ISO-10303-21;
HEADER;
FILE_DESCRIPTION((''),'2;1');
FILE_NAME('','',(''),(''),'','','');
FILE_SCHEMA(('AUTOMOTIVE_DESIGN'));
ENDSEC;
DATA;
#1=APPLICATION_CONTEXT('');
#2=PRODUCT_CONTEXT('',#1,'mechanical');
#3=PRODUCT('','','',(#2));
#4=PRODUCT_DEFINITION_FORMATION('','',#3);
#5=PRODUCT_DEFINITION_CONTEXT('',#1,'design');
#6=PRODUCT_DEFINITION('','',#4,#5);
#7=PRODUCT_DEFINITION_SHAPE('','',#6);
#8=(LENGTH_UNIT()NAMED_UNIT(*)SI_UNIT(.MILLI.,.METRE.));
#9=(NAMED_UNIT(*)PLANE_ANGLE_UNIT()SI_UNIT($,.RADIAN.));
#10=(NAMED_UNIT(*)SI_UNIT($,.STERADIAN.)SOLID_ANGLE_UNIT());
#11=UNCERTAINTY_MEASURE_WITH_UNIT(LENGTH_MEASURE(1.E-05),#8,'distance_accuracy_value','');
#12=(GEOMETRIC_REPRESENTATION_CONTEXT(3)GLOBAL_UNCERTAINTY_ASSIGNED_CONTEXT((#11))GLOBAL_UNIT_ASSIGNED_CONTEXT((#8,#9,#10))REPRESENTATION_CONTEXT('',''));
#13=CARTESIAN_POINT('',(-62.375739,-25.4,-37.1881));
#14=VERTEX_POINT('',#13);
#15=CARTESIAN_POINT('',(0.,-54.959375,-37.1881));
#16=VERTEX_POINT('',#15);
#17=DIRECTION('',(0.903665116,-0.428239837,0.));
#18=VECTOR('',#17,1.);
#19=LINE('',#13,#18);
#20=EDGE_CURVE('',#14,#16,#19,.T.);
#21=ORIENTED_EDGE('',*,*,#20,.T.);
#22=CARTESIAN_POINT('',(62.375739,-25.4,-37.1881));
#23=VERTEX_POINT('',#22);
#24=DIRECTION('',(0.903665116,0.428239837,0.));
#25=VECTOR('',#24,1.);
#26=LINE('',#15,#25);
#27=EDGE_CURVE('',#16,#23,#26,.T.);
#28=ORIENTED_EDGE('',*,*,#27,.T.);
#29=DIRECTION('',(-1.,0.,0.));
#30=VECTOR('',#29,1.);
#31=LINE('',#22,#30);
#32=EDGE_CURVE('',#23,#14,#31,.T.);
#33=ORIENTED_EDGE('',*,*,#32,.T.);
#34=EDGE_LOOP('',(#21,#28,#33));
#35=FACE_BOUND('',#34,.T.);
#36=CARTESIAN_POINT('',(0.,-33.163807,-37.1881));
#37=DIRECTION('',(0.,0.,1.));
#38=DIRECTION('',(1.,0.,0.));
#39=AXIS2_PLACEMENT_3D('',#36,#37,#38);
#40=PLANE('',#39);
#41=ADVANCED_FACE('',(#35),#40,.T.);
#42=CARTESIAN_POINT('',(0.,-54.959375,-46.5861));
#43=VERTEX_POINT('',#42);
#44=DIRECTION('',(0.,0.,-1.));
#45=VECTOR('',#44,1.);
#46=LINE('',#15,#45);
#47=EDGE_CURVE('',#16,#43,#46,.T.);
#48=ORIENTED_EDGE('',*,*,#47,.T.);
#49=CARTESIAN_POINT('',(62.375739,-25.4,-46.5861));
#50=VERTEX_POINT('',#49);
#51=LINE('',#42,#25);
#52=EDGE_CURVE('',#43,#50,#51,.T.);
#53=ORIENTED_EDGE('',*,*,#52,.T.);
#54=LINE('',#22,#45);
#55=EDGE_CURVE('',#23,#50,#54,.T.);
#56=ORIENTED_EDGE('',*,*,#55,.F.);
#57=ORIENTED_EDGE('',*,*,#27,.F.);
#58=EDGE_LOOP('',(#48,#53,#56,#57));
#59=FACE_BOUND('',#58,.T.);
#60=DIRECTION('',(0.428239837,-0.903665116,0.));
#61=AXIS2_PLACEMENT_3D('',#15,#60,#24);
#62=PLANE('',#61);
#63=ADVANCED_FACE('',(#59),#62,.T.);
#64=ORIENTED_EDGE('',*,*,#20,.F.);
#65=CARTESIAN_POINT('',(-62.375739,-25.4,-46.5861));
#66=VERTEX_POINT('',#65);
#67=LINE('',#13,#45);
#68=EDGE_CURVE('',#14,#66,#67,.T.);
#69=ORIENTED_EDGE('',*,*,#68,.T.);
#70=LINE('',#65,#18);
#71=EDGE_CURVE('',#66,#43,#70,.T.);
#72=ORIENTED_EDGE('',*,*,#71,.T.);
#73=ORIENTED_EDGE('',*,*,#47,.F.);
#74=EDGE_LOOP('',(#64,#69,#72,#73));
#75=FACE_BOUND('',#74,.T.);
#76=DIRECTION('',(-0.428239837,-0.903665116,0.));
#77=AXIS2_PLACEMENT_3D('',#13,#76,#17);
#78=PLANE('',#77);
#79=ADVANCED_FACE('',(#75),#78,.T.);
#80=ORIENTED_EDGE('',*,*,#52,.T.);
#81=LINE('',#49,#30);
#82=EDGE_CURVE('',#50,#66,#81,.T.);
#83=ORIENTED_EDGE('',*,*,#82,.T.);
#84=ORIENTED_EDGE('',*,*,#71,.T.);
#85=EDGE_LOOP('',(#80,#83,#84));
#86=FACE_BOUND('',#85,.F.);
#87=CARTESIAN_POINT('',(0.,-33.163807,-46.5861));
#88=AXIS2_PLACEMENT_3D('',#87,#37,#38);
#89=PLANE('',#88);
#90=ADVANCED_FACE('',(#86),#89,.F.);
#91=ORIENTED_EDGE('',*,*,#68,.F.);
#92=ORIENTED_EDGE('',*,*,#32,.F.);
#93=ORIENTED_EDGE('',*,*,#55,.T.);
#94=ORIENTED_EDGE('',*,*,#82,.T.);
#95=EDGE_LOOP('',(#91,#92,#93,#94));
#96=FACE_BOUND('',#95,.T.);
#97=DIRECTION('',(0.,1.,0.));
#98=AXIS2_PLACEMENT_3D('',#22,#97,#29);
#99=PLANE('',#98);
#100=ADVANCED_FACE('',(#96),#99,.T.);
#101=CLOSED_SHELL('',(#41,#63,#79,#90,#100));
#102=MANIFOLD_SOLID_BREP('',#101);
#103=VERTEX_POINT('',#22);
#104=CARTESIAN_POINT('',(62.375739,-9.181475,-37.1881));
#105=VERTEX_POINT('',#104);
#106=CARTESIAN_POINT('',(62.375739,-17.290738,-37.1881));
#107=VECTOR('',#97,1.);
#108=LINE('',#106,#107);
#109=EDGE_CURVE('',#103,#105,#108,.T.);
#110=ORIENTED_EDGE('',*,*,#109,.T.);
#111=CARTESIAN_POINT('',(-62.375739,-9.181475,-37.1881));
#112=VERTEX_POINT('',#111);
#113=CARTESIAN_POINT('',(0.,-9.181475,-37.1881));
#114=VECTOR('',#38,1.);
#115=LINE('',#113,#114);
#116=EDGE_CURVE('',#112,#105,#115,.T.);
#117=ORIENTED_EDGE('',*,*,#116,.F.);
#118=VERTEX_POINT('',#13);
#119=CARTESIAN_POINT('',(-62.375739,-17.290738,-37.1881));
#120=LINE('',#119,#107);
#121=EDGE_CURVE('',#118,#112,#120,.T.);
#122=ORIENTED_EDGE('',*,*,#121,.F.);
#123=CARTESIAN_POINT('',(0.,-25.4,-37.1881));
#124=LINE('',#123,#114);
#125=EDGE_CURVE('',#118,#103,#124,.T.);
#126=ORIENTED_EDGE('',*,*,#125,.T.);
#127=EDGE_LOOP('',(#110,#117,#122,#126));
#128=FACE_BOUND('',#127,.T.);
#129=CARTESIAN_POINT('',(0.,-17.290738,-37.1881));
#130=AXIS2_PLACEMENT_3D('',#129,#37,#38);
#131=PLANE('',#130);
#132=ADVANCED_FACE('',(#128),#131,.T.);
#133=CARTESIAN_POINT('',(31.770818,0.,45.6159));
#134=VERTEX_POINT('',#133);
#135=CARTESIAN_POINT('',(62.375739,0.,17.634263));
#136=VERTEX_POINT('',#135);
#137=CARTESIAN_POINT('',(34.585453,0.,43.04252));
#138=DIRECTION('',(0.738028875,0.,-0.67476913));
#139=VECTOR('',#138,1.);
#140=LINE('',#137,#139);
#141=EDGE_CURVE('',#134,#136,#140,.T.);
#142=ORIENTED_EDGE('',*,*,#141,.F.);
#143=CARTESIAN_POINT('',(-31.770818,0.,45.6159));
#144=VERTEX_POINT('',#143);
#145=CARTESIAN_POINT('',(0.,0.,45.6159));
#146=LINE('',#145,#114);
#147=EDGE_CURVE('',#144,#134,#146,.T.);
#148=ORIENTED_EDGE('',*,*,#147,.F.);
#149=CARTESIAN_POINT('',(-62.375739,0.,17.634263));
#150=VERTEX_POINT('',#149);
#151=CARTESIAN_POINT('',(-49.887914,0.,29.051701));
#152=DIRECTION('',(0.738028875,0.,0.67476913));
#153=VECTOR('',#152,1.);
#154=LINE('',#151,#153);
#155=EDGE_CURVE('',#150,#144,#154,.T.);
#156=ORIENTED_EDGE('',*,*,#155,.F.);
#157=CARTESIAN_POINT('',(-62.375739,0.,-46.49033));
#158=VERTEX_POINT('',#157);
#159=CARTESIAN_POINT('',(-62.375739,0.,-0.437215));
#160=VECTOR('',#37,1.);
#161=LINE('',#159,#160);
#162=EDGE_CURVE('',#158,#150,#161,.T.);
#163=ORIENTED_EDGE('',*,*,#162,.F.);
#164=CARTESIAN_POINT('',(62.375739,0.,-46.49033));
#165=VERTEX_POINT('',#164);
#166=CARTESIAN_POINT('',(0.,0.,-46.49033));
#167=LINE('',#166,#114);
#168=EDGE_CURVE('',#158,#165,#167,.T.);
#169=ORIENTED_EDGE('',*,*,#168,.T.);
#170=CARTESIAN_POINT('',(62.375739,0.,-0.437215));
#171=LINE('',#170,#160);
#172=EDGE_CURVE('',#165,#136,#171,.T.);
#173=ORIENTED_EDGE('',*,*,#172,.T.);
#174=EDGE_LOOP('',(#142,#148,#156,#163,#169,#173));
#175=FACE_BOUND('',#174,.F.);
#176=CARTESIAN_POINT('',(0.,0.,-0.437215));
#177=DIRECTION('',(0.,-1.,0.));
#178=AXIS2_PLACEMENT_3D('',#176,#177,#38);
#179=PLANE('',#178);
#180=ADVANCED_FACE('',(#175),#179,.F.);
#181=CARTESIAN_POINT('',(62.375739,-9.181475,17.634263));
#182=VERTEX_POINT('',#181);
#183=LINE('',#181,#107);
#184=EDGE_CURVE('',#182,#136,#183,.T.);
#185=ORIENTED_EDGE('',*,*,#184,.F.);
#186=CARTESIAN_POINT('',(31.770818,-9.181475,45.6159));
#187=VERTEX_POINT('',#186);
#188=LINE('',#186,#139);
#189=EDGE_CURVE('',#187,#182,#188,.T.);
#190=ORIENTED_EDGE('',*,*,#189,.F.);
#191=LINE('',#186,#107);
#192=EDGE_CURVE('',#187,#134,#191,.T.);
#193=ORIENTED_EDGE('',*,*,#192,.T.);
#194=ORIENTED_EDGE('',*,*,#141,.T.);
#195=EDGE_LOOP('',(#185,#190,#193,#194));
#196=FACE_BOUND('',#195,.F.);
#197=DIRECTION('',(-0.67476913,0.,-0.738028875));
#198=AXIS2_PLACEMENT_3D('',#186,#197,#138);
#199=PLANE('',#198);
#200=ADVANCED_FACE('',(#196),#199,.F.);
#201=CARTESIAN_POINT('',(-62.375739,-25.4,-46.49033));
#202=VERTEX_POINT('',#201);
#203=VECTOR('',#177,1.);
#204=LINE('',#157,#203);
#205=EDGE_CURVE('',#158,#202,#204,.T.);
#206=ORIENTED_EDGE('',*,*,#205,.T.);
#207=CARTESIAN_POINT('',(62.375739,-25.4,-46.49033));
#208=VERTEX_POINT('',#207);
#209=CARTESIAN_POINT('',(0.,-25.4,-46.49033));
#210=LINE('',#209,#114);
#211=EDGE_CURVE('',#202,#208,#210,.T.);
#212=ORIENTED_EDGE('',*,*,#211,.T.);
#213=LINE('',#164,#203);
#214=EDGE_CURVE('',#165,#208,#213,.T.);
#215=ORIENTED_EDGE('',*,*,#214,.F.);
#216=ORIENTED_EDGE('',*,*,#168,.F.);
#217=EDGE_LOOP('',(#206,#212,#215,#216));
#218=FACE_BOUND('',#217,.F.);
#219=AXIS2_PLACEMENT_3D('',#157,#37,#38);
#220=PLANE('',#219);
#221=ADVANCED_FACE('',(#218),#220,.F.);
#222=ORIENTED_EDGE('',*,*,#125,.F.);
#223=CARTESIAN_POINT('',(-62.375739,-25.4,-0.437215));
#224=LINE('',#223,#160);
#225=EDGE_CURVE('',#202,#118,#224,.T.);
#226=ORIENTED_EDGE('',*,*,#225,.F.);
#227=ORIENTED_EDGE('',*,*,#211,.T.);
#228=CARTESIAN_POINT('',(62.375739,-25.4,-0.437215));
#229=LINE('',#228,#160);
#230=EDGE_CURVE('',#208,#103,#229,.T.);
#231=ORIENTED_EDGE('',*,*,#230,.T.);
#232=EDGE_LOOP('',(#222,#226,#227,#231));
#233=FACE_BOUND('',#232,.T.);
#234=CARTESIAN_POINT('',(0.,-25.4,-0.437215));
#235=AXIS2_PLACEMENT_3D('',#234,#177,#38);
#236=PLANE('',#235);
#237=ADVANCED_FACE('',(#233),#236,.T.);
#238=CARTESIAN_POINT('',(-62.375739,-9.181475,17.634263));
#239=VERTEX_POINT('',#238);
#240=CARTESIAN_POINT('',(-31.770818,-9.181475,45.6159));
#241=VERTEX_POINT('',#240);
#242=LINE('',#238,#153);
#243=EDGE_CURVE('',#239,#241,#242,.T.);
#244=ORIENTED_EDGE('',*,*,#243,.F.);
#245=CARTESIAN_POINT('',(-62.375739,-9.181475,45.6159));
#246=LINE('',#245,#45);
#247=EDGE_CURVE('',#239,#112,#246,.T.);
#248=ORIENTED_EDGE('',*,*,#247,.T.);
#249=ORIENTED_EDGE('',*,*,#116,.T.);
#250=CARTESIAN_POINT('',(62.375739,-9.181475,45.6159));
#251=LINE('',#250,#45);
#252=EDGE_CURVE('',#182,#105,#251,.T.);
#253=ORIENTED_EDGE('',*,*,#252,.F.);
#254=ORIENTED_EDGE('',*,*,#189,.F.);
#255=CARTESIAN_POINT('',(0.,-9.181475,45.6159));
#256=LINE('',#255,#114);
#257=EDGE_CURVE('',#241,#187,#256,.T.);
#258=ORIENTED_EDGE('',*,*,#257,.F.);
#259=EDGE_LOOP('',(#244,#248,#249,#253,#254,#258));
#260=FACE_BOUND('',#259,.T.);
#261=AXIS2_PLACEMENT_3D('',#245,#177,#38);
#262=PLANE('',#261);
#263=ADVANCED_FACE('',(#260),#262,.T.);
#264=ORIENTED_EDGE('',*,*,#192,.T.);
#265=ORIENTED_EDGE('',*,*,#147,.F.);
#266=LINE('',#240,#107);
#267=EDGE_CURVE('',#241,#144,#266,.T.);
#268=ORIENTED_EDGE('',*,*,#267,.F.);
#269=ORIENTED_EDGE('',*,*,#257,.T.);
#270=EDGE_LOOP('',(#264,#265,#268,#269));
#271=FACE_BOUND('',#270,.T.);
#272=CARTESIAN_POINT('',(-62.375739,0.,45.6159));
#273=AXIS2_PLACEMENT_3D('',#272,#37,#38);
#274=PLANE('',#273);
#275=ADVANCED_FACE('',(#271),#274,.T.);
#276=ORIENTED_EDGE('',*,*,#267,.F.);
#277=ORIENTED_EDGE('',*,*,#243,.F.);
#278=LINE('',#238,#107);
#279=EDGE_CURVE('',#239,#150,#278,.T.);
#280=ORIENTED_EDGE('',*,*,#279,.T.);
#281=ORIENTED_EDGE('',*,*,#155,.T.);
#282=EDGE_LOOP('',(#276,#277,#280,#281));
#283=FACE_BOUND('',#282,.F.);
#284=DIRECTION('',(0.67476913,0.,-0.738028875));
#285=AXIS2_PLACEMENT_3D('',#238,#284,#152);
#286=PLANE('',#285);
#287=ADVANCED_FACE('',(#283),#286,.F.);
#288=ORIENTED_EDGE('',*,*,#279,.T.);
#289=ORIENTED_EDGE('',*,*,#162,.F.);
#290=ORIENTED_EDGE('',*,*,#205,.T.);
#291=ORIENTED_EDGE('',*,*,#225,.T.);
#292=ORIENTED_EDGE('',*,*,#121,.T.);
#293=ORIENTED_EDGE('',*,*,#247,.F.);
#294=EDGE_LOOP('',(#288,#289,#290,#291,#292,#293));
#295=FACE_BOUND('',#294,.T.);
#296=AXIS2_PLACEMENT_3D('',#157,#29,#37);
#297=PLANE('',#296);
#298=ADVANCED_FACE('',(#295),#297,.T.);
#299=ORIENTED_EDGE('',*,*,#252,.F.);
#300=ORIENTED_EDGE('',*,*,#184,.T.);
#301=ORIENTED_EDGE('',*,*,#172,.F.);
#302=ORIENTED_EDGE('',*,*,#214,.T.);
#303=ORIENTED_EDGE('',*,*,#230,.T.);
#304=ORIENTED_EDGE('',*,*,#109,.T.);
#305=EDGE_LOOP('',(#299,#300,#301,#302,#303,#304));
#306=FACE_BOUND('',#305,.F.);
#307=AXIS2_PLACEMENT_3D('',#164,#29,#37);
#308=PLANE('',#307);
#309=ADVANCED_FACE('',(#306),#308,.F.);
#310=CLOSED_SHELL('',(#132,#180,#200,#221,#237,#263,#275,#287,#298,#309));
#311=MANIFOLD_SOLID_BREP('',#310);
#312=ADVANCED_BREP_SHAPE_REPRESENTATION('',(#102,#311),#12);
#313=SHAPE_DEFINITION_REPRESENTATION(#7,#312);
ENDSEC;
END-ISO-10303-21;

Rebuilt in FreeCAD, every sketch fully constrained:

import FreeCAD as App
import Part
import Sketcher
from FreeCAD import Vector
Q = App.Units.Quantity


def add_polygon(sketch, points):
    """Adds a closed chain of lines whose ends are joined by coincident constraints."""
    first, n = sketch.GeometryCount, len(points)
    for a, b in zip(points, points[1:] + points[:1]):
        sketch.addGeometry(Part.LineSegment(App.Vector(*a, 0), App.Vector(*b, 0)), False)
    for i in range(n):
        sketch.addConstraint(Sketcher.Constraint("Coincident", first + i, 2, first + (i + 1) % n, 1))

doc = App.newDocument("Part")
params = doc.addObject("Spreadsheet::Sheet", "Params")
for row, (alias, value) in enumerate([
    ("pad1_length", "1 in"),
    ("pocket1_length", "3.26 in"),
    ("pocket2_length", "1 in"),
    ("pad2_length", "0.37 in"),
], start=1):
    params.set(f"A{row}", alias)
    params.set(f"B{row}", "=" + value)
    params.setAlias(f"B{row}", alias)

body = doc.addObject("PartDesign::Body", "Body")

sketch1 = doc.addObject("Sketcher::SketchObject", "Sketch")
body.addObject(sketch1)
sketch1.AttachmentSupport = (doc.XZ_Plane, [""])
sketch1.MapMode = "FlatFace"
add_polygon(sketch1, [(-62, 46), (-62, -46), (62, -46), (62, 46)])
sketch1.addConstraint([
    Sketcher.Constraint("Vertical", 0),
    Sketcher.Constraint("Horizontal", 1),
    Sketcher.Constraint("Vertical", 2),
    Sketcher.Constraint("Horizontal", 3),
    Sketcher.Constraint("DistanceX", 1, 1, 1, 2, Q("124.751478 mm")),
    Sketcher.Constraint("DistanceY", 0, 2, 0, 1, Q("92.106231 mm")),
    Sketcher.Constraint("DistanceY", -1, 1, 2, 2, Q("45.6159 mm")),
    Sketcher.Constraint("DistanceX", 0, 2, -1, 1, Q("62.375739 mm")),
])
pad1 = doc.addObject("PartDesign::Pad", "Pad")
body.addObject(pad1)
pad1.Profile = sketch1
pad1.setExpression("Length", "Params.pad1_length")

sketch2 = doc.addObject("Sketcher::SketchObject", "Sketch001")
body.addObject(sketch2)
sketch2.AttachmentSupport = (doc.XY_Plane, [""])
sketch2.MapMode = "FlatFace"
sketch2.AttachmentOffset = App.Placement(Vector(0, 0, 45.6159), App.Rotation())
add_polygon(sketch2, [(-62, -9), (-62, -25), (62, -25), (62, -9)])
sketch2.addConstraint([
    Sketcher.Constraint("Vertical", 0),
    Sketcher.Constraint("Horizontal", 1),
    Sketcher.Constraint("Vertical", 2),
    Sketcher.Constraint("Horizontal", 3),
    Sketcher.Constraint("DistanceY", 0, 2, -1, 1, Q("1 in")),
    Sketcher.Constraint("DistanceX", 1, 1, 1, 2, Q("124.751478 mm")),
    Sketcher.Constraint("DistanceY", 0, 2, 0, 1, Q("16.218525 mm")),
    Sketcher.Constraint("DistanceX", 0, 2, -1, 1, Q("62.375739 mm")),
])
pocket1 = doc.addObject("PartDesign::Pocket", "Pocket")
body.addObject(pocket1)
pocket1.Profile = sketch2
pocket1.setExpression("Length", "Params.pocket1_length")

sketch3 = doc.addObject("Sketcher::SketchObject", "Sketch002")
body.addObject(sketch3)
sketch3.AttachmentSupport = (doc.XZ_Plane, [""])
sketch3.MapMode = "FlatFace"
sketch3.AttachmentOffset = App.Placement(Vector(0, 0, 9.181475), App.Rotation())
add_polygon(sketch3, [(62, 46), (32, 46), (62, 18)])
add_polygon(sketch3, [(-62, 18), (-32, 46), (-62, 46)])
sketch3.addConstraint([
    Sketcher.Constraint("Horizontal", 0),
    Sketcher.Constraint("Vertical", 2),
    Sketcher.Constraint("Horizontal", 4),
    Sketcher.Constraint("Vertical", 5),
    Sketcher.Constraint("Symmetric", 0, 2, 3, 2, -2),
    Sketcher.Constraint("Symmetric", 1, 2, 5, 2, -2),
    Sketcher.Constraint("DistanceX", 0, 2, 0, 1, Q("30.604921 mm")),
    Sketcher.Constraint("DistanceY", -1, 1, 0, 2, Q("45.6159 mm")),
    Sketcher.Constraint("Distance", 1, Q("41.468461 mm")),
    Sketcher.Constraint("DistanceX", -1, 1, 1, 2, Q("62.375739 mm")),
])
pocket2 = doc.addObject("PartDesign::Pocket", "Pocket001")
body.addObject(pocket2)
pocket2.Profile = sketch3
pocket2.setExpression("Length", "Params.pocket2_length")
body2 = doc.addObject("PartDesign::Body", "Body001")

sketch4 = doc.addObject("Sketcher::SketchObject", "Sketch003")
body2.addObject(sketch4)
sketch4.AttachmentSupport = (doc.getObject("XY_Plane001"), [""])
sketch4.MapMode = "FlatFace"
sketch4.AttachmentOffset = App.Placement(Vector(0, 0, -37.1881), App.Rotation())
add_polygon(sketch4, [(62, -25), (-62, -25), (0, -55)])
sketch4.addConstraint([
    Sketcher.Constraint("Horizontal", 0),
    Sketcher.Constraint("PointOnObject", 1, 2, -2),
    Sketcher.Constraint("Equal", 1, 2),
    Sketcher.Constraint("DistanceY", 0, 2, -1, 1, Q("1 in")),
    Sketcher.Constraint("DistanceX", 0, 2, 0, 1, Q("124.751478 mm")),
    Sketcher.Constraint("Distance", 1, Q("69.025282 mm")),
])
pad2 = doc.addObject("PartDesign::Pad", "Pad001")
body2.addObject(pad2)
pad2.Profile = sketch4
pad2.setExpression("Length", "Params.pad2_length")
pad2.Reversed = True

doc.recompute()
